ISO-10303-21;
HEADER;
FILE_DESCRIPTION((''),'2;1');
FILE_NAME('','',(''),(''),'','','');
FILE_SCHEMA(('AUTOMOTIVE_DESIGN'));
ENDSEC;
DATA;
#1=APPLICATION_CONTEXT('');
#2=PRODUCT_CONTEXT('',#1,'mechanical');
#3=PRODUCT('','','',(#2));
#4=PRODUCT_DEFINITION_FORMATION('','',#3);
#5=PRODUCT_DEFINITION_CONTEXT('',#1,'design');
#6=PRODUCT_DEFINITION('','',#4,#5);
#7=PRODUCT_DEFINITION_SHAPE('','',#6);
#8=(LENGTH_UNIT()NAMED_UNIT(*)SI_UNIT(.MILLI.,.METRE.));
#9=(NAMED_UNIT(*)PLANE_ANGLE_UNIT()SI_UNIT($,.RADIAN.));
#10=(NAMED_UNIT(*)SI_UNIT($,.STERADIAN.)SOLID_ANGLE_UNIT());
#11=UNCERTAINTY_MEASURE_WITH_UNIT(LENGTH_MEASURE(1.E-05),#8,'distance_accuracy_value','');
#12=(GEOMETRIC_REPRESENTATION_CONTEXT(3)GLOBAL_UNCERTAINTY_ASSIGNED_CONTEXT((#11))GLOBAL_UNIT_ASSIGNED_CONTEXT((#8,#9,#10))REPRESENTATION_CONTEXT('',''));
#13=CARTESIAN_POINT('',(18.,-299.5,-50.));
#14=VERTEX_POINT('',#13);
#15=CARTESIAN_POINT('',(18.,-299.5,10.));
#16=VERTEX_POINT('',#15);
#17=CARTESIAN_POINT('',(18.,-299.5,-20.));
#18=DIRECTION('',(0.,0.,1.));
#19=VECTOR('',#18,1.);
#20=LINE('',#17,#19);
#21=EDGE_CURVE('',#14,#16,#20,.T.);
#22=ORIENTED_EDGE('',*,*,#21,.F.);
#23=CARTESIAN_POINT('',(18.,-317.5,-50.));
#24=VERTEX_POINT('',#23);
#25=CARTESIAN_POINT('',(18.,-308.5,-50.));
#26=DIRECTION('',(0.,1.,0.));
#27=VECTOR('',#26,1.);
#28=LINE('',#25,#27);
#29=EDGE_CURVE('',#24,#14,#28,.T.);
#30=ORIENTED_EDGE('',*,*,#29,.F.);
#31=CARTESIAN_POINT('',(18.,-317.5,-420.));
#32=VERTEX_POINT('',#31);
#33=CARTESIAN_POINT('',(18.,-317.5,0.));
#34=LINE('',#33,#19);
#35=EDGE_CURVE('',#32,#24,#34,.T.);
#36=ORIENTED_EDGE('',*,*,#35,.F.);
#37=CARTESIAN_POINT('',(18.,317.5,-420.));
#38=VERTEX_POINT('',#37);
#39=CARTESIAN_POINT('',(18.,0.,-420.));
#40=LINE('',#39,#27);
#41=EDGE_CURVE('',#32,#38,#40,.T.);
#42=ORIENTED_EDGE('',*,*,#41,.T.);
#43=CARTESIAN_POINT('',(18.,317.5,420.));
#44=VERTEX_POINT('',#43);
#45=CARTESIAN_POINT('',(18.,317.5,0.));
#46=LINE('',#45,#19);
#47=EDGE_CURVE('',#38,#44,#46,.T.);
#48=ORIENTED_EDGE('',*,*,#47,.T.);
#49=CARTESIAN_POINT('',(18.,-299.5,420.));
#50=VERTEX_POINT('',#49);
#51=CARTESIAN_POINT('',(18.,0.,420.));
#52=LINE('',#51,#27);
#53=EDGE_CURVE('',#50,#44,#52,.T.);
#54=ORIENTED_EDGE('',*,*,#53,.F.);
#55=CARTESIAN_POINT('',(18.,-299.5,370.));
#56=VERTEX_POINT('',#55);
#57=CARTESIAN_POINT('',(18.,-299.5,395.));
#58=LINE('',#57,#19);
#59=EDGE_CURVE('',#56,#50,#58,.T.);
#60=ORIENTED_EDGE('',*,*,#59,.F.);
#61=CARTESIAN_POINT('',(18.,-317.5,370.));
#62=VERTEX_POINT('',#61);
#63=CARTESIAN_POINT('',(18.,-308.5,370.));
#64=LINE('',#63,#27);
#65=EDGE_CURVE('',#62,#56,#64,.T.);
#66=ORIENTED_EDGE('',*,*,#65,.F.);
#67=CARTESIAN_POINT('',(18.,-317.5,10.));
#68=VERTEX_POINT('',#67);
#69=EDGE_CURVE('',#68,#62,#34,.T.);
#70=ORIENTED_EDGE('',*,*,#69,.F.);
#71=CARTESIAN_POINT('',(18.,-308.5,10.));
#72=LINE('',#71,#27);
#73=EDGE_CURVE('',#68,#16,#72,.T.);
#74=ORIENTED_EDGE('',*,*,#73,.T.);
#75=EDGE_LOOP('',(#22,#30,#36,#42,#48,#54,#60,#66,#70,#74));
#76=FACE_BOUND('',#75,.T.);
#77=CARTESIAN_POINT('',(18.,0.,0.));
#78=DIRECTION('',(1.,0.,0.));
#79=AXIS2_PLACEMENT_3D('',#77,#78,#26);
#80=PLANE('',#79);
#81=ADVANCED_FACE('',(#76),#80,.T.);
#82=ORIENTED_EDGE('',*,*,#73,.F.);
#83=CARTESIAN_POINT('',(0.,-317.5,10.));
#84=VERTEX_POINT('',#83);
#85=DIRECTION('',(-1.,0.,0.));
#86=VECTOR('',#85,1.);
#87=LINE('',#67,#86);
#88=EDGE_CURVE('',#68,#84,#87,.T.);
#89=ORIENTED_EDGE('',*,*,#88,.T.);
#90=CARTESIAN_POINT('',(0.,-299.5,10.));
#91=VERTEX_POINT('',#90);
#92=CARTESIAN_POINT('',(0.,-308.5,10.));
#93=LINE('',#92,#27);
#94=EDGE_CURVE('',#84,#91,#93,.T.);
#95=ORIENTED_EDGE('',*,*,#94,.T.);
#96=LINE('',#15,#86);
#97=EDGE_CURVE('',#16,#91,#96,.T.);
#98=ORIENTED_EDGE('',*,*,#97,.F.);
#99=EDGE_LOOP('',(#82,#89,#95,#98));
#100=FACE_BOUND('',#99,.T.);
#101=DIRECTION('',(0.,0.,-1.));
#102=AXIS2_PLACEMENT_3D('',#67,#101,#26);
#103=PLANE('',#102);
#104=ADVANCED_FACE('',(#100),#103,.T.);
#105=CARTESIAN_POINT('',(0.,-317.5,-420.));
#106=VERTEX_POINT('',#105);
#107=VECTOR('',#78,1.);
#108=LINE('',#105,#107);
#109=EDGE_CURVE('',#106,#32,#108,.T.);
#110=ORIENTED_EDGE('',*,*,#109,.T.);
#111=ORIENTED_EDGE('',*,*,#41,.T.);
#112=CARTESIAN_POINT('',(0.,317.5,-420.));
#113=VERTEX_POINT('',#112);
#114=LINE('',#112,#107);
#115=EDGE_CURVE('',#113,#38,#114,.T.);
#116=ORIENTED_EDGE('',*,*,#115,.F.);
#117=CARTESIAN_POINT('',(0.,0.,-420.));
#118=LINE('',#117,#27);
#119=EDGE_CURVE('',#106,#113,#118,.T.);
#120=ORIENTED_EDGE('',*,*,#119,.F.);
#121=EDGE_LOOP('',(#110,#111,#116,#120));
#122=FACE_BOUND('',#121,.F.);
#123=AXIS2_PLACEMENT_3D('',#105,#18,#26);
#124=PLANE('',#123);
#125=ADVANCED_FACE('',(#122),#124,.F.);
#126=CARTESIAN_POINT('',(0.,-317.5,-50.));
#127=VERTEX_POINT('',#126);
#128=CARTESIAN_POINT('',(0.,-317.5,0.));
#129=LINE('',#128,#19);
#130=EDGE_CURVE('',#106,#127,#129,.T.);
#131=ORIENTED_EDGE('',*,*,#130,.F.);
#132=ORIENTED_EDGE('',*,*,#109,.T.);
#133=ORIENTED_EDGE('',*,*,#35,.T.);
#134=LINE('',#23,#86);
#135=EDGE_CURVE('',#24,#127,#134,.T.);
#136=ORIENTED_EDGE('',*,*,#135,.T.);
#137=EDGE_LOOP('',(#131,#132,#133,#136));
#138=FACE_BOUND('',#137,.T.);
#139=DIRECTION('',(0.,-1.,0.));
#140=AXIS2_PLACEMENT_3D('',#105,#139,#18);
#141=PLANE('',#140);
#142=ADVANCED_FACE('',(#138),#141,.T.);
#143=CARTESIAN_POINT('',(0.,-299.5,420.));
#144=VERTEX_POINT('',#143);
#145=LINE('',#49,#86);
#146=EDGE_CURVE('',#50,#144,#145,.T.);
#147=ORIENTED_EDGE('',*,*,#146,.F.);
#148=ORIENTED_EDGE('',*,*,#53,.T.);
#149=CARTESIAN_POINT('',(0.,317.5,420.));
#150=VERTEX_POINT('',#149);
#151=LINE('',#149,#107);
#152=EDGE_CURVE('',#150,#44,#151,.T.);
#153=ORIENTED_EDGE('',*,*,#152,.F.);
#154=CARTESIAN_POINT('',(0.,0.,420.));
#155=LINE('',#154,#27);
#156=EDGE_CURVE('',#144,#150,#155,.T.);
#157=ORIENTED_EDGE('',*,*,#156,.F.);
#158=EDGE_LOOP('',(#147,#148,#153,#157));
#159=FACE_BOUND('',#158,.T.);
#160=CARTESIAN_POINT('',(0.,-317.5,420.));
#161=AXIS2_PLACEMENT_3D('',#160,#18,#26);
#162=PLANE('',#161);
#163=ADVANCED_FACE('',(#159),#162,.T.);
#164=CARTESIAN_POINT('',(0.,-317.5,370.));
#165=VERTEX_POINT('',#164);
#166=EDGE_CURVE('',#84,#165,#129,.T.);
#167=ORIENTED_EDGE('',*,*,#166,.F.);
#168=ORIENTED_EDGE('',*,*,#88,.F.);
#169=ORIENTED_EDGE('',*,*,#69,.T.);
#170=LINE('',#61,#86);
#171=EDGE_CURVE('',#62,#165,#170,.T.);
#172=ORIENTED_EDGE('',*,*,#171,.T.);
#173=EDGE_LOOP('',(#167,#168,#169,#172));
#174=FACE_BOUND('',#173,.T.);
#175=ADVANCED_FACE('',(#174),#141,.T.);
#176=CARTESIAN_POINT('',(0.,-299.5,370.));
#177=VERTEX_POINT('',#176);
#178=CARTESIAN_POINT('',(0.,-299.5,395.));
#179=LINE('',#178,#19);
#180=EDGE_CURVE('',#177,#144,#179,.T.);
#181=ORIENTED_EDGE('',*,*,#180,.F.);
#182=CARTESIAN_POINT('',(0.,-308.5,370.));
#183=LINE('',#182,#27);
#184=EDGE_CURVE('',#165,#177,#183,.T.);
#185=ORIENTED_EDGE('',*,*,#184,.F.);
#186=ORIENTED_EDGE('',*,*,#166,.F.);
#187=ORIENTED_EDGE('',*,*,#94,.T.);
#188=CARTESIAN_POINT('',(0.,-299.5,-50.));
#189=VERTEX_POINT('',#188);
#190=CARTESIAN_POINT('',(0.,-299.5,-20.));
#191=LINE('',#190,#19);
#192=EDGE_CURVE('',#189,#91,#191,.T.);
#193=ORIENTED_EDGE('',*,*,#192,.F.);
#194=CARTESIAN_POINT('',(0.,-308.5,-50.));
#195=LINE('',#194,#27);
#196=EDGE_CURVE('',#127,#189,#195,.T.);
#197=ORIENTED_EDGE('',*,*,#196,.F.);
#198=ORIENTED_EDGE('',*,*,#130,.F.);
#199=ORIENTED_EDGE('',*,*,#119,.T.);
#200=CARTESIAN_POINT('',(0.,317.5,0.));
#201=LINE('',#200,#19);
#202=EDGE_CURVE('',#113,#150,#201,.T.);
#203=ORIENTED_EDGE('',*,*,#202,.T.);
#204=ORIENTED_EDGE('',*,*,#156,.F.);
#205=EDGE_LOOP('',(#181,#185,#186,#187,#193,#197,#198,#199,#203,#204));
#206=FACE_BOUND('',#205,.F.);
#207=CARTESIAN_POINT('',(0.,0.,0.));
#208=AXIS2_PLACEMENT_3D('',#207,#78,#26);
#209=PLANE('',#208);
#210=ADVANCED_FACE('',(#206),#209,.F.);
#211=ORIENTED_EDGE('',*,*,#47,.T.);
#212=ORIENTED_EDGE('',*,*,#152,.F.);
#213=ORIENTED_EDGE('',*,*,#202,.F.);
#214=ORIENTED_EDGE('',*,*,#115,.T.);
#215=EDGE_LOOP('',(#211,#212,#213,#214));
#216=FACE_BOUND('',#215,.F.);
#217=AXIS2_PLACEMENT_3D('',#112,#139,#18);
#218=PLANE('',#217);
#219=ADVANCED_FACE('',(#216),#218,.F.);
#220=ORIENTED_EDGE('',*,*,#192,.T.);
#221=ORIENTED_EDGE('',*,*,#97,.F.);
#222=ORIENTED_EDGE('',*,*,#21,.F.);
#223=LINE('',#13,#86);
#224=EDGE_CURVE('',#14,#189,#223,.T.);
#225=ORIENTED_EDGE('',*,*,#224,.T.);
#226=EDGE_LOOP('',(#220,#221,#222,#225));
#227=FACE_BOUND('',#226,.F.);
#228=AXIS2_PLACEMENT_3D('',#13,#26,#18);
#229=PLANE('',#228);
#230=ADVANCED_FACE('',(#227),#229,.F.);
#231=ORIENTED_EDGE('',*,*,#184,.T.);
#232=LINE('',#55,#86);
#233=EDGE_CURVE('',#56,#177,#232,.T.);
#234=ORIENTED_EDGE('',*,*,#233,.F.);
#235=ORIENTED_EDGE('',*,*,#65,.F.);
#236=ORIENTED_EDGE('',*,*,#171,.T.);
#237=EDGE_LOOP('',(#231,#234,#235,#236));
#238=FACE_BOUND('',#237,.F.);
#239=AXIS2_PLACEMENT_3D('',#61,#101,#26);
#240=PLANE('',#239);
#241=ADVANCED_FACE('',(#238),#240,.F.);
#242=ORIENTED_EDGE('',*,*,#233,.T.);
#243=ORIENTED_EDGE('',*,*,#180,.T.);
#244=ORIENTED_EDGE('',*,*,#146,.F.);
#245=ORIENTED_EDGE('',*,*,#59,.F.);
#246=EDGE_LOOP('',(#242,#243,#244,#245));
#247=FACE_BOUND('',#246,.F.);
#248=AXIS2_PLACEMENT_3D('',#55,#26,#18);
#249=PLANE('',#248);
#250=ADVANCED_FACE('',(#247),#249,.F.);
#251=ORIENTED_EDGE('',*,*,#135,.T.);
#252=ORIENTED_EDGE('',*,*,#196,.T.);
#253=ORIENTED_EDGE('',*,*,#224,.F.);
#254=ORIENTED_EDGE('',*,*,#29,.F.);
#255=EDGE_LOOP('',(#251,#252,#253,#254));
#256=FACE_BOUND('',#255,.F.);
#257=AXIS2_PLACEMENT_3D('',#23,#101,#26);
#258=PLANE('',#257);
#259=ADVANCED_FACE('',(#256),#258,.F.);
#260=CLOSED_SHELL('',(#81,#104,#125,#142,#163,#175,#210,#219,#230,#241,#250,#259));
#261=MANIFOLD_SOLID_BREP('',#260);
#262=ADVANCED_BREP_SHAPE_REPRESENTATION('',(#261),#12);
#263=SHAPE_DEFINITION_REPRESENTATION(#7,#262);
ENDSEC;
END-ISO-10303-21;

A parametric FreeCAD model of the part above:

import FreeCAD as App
import Part
import Sketcher
Q = App.Units.Quantity


def add_polygon(sketch, points):
    """Adds a closed chain of lines whose ends are joined by coincident constraints."""
    first, n = sketch.GeometryCount, len(points)
    for a, b in zip(points, points[1:] + points[:1]):
        sketch.addGeometry(Part.LineSegment(App.Vector(*a, 0), App.Vector(*b, 0)), False)
    for i in range(n):
        sketch.addConstraint(Sketcher.Constraint("Coincident", first + i, 2, first + (i + 1) % n, 1))

doc = App.newDocument("Part")
params = doc.addObject("Spreadsheet::Sheet", "Params")
for row, (alias, value) in enumerate([
    ("sketch1_width", "635 mm"),
    ("sketch1_height", "840 mm"),
    ("pad1_length", "18 mm"),
    ("sketch2_width", "18 mm"),
    ("sketch2_height", "50 mm"),
    ("sketch2_height2", "60 mm"),
    ("pocket1_length", "18 mm"),
], start=1):
    params.set(f"A{row}", alias)
    params.set(f"B{row}", "=" + value)
    params.setAlias(f"B{row}", alias)

body = doc.addObject("PartDesign::Body", "Body")

sketch1 = body.newObject("Sketcher::SketchObject", "Sketch")
sketch1.AttachmentSupport = (doc.getObject("YZ_Plane"), [""])
sketch1.MapMode = "FlatFace"
add_polygon(sketch1, [(-317.5, 420), (-317.5, -420), (317.5, -420), (317.5, 420)])
sketch1.addConstraint(Sketcher.Constraint("Vertical", 0))
sketch1.addConstraint(Sketcher.Constraint("Horizontal", 1))
sketch1.addConstraint(Sketcher.Constraint("Vertical", 2))
sketch1.addConstraint(Sketcher.Constraint("Horizontal", 3))
sketch1.addConstraint(Sketcher.Constraint("Symmetric", 0, 2, 2, 2, -1, 1))
sketch1.addConstraint(Sketcher.Constraint("DistanceX", 1, 1, 1, 2, Q("635 mm")))
sketch1.addConstraint(Sketcher.Constraint("DistanceY", 0, 2, 0, 1, Q("840 mm")))
sketch1.setExpression("Constraints[9]", "Params.sketch1_width")
sketch1.setExpression("Constraints[10]", "Params.sketch1_height")
pad1 = body.newObject("PartDesign::Pad", "Pad")
pad1.Profile = sketch1
pad1.setExpression("Length", "Params.pad1_length")

sketch2 = body.newObject("Sketcher::SketchObject", "Sketch001")
sketch2.AttachmentSupport = (doc.getObject("YZ_Plane"), [""])
sketch2.MapMode = "FlatFace"
sketch2.AttachmentOffset = App.Placement(App.Vector(0, 0, 18), App.Rotation())
add_polygon(sketch2, [(-317.5, 420), (-317.5, 370), (-299.5, 370), (-299.5, 420)])
add_polygon(sketch2, [(-317.5, 10), (-317.5, -50), (-299.5, -50), (-299.5, 10)])
sketch2.addConstraint(Sketcher.Constraint("Vertical", 0))
sketch2.addConstraint(Sketcher.Constraint("Horizontal", 1))
sketch2.addConstraint(Sketcher.Constraint("Vertical", 2))
sketch2.addConstraint(Sketcher.Constraint("Horizontal", 3))
sketch2.addConstraint(Sketcher.Constraint("Vertical", 4))
sketch2.addConstraint(Sketcher.Constraint("Horizontal", 5))
sketch2.addConstraint(Sketcher.Constraint("Vertical", 6))
sketch2.addConstraint(Sketcher.Constraint("Horizontal", 7))
sketch2.addConstraint(Sketcher.Constraint("Vertical", 3, 2, 4, 2))
sketch2.addConstraint(Sketcher.Constraint("Vertical", 2, 2, 5, 2))
sketch2.addConstraint(Sketcher.Constraint("DistanceX", 1, 1, 1, 2, Q("18 mm")))
sketch2.addConstraint(Sketcher.Constraint("DistanceY", 0, 2, 0, 1, Q("50 mm")))
sketch2.addConstraint(Sketcher.Constraint("DistanceY", 4, 2, 4, 1, Q("60 mm")))
sketch2.addConstraint(Sketcher.Constraint("DistanceY", -1, 1, 0, 2, Q("370 mm")))
sketch2.addConstraint(Sketcher.Constraint("DistanceY", 4, 2, -1, 1, Q("50 mm")))
sketch2.addConstraint(Sketcher.Constraint("DistanceX", 0, 2, -1, 1, Q("317.5 mm")))
sketch2.setExpression("Constraints[18]", "Params.sketch2_width")
sketch2.setExpression("Constraints[19]", "Params.sketch2_height")
sketch2.setExpression("Constraints[20]", "Params.sketch2_height2")
pocket1 = body.newObject("PartDesign::Pocket", "Pocket")
pocket1.Profile = sketch2
pocket1.setExpression("Length", "Params.pocket1_length")

doc.recompute()
